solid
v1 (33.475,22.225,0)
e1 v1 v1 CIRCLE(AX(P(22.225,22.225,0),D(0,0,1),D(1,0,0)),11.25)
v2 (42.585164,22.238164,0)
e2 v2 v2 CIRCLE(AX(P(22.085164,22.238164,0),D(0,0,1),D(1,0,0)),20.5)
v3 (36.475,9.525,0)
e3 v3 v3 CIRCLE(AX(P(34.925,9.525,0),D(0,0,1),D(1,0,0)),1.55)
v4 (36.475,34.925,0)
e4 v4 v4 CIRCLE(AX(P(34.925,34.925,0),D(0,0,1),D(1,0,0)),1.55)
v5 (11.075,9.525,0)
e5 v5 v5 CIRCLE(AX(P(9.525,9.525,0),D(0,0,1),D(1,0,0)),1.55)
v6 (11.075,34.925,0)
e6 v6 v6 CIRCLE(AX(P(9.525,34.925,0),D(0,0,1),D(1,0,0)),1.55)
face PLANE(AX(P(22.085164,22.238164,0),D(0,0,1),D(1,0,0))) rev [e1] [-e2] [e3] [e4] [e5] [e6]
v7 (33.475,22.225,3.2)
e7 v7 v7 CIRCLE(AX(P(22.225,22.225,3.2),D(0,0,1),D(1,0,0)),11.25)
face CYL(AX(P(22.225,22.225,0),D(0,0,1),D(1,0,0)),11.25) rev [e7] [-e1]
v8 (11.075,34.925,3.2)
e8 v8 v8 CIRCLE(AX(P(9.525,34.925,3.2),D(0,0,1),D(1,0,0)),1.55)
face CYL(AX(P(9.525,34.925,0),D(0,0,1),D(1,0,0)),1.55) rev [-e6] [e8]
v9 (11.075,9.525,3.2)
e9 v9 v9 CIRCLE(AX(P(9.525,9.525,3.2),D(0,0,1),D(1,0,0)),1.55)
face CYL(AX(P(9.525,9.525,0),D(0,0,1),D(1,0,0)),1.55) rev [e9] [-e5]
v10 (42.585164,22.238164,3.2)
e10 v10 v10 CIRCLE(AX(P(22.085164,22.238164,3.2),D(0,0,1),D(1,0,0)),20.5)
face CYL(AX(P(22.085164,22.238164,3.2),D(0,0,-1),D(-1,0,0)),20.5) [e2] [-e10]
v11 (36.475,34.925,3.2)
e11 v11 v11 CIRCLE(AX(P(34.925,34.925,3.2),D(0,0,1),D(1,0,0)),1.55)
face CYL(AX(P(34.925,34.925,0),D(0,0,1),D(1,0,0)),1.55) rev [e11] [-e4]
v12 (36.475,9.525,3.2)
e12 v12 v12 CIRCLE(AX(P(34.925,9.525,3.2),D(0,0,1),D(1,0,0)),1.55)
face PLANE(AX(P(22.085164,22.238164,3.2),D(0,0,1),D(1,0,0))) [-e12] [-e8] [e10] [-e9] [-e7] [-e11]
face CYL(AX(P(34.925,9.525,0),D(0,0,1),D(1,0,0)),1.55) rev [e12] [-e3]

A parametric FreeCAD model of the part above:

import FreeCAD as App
import Part
import Sketcher

V = App.Vector
Q = App.Units.Quantity

doc = App.newDocument("Part")
body = doc.addObject("PartDesign::Body", "Body")

sketch1 = doc.addObject("Sketcher::SketchObject", "Sketch")
body.addObject(sketch1)
sketch1.AttachmentSupport = (doc.XY_Plane, [""])
sketch1.MapMode = "FlatFace"
sketch1.addGeometry(Part.Circle(V(22, 22, 0), V(0, 0, 1), 20), False)
sketch1.addConstraint([
    Sketcher.Constraint("Diameter", 0, Q("41 mm")),
    Sketcher.Constraint("DistanceX", -1, 1, 0, 3, Q("22.085164 mm")),
    Sketcher.Constraint("DistanceY", -1, 1, 0, 3, Q("22.238164 mm")),
])
pad1 = doc.addObject("PartDesign::Pad", "Pad")
body.addObject(pad1)
pad1.Profile = sketch1
pad1.Length = 3.2

sketch2 = doc.addObject("Sketcher::SketchObject", "Sketch001")
body.addObject(sketch2)
sketch2.AttachmentSupport = (doc.XY_Plane, [""])
sketch2.MapMode = "FlatFace"
sketch2.AttachmentOffset = App.Placement(V(0, 0, 3.2), App.Rotation())
sketch2.addGeometry(Part.Circle(V(22, 22, 0), V(0, 0, 1), 11), False)
sketch2.addConstraint([
    Sketcher.Constraint("Diameter", 0, Q("22.5 mm")),
    Sketcher.Constraint("DistanceX", -1, 1, 0, 3, Q("22.225 mm")),
    Sketcher.Constraint("DistanceY", -1, 1, 0, 3, Q("22.225 mm")),
])
pocket1 = doc.addObject("PartDesign::Pocket", "Pocket")
body.addObject(pocket1)
pocket1.Profile = sketch2
pocket1.Type = "ThroughAll"

sketch3 = doc.addObject("Sketcher::SketchObject", "Sketch002")
body.addObject(sketch3)
sketch3.AttachmentSupport = (doc.XY_Plane, [""])
sketch3.MapMode = "FlatFace"
sketch3.AttachmentOffset = App.Placement(V(0, 0, 3.2), App.Rotation())
sketch3.addGeometry([
    Part.Circle(V(34.9, 34.9, 0), V(0, 0, 1), 1.6),
    Part.Circle(V(9.5, 34.9, 0), V(0, 0, 1), 1.6),
    Part.Circle(V(34.9, 9.5, 0), V(0, 0, 1), 1.6),
    Part.Circle(V(9.5, 9.5, 0), V(0, 0, 1), 1.6),
], False)
sketch3.addConstraint([
    Sketcher.Constraint("Equal", 0, 1),
    Sketcher.Constraint("Equal", 1, 2),
    Sketcher.Constraint("Equal", 2, 3),
    Sketcher.Constraint("Horizontal", 0, 3, 1, 3),
    Sketcher.Constraint("Horizontal", 2, 3, 3, 3),
    Sketcher.Constraint("Vertical", 0, 3, 2, 3),
    Sketcher.Constraint("Vertical", 1, 3, 3, 3),
    Sketcher.Constraint("Diameter", 0, Q("3.1 mm")),
    Sketcher.Constraint("DistanceX", 1, 3, 0, 3, Q("25.4 mm")),
    Sketcher.Constraint("DistanceY", 2, 3, 0, 3, Q("25.4 mm")),
    Sketcher.Constraint("DistanceX", -1, 1, 0, 3, Q("34.925 mm")),
    Sketcher.Constraint("DistanceY", -1, 1, 0, 3, Q("34.925 mm")),
])
pocket2 = doc.addObject("PartDesign::Pocket", "Pocket001")
body.addObject(pocket2)
pocket2.Profile = sketch3
pocket2.Type = "ThroughAll"

doc.recompute()
